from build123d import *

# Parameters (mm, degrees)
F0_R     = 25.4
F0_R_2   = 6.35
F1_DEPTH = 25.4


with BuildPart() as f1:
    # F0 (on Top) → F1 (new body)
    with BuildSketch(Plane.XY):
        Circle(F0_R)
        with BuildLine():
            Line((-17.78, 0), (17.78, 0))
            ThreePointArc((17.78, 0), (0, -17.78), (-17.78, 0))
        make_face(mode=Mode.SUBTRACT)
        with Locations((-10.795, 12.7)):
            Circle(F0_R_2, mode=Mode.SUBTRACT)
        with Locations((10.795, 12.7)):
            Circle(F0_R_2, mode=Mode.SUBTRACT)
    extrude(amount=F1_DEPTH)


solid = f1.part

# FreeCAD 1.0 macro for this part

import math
import FreeCAD as App
import Part
import Sketcher
Q = App.Units.Quantity

doc = App.newDocument("Part")
body = doc.addObject("PartDesign::Body", "Body")

sketch1 = body.newObject("Sketcher::SketchObject", "Sketch")
sketch1.AttachmentSupport = (doc.getObject("XY_Plane"), [""])
sketch1.MapMode = "FlatFace"
sketch1.addGeometry([
    Part.Circle(App.Vector(0, 0, 0), App.Vector(0, 0, 1), 25.4),
    Part.ArcOfCircle(Part.Circle(App.Vector(0, 0, 0), App.Vector(0, 0, 1), 17.78), math.radians(180), math.radians(360)),
    Part.LineSegment(App.Vector(-17.78, 0, 0), App.Vector(17.78, 0, 0)),
    Part.Circle(App.Vector(-10.795, 12.7, 0), App.Vector(0, 0, 1), 6.35),
    Part.Circle(App.Vector(10.795, 12.7, 0), App.Vector(0, 0, 1), 6.35),
], False)
sketch1.addConstraint([
    Sketcher.Constraint("Coincident", 1, 1, 2, 1),
    Sketcher.Constraint("Coincident", 2, 2, 1, 2),
    Sketcher.Constraint("Horizontal", 2),
    Sketcher.Constraint("Coincident", 0, 3, -1, 1),
    Sketcher.Constraint("Coincident", 1, 3, -1, 1),
    Sketcher.Constraint("Equal", 3, 4),
    Sketcher.Constraint("Symmetric", 3, 3, 4, 3, -2),
    Sketcher.Constraint("PointOnObject", 1, 1, -1),
    Sketcher.Constraint("Diameter", 0, Q("2 in")),
    Sketcher.Constraint("Diameter", 3, Q("0.5 in")),
    Sketcher.Constraint("Radius", 1, Q("0.7 in")),
    Sketcher.Constraint("DistanceY", -1, 1, 3, 3, Q("0.5 in")),
    Sketcher.Constraint("DistanceX", 3, 3, 4, 3, Q("0.85 in")),
])
pad1 = body.newObject("PartDesign::Pad", "Pad")
pad1.Profile = sketch1
pad1.Length = Q("1 in")

doc.recompute()
